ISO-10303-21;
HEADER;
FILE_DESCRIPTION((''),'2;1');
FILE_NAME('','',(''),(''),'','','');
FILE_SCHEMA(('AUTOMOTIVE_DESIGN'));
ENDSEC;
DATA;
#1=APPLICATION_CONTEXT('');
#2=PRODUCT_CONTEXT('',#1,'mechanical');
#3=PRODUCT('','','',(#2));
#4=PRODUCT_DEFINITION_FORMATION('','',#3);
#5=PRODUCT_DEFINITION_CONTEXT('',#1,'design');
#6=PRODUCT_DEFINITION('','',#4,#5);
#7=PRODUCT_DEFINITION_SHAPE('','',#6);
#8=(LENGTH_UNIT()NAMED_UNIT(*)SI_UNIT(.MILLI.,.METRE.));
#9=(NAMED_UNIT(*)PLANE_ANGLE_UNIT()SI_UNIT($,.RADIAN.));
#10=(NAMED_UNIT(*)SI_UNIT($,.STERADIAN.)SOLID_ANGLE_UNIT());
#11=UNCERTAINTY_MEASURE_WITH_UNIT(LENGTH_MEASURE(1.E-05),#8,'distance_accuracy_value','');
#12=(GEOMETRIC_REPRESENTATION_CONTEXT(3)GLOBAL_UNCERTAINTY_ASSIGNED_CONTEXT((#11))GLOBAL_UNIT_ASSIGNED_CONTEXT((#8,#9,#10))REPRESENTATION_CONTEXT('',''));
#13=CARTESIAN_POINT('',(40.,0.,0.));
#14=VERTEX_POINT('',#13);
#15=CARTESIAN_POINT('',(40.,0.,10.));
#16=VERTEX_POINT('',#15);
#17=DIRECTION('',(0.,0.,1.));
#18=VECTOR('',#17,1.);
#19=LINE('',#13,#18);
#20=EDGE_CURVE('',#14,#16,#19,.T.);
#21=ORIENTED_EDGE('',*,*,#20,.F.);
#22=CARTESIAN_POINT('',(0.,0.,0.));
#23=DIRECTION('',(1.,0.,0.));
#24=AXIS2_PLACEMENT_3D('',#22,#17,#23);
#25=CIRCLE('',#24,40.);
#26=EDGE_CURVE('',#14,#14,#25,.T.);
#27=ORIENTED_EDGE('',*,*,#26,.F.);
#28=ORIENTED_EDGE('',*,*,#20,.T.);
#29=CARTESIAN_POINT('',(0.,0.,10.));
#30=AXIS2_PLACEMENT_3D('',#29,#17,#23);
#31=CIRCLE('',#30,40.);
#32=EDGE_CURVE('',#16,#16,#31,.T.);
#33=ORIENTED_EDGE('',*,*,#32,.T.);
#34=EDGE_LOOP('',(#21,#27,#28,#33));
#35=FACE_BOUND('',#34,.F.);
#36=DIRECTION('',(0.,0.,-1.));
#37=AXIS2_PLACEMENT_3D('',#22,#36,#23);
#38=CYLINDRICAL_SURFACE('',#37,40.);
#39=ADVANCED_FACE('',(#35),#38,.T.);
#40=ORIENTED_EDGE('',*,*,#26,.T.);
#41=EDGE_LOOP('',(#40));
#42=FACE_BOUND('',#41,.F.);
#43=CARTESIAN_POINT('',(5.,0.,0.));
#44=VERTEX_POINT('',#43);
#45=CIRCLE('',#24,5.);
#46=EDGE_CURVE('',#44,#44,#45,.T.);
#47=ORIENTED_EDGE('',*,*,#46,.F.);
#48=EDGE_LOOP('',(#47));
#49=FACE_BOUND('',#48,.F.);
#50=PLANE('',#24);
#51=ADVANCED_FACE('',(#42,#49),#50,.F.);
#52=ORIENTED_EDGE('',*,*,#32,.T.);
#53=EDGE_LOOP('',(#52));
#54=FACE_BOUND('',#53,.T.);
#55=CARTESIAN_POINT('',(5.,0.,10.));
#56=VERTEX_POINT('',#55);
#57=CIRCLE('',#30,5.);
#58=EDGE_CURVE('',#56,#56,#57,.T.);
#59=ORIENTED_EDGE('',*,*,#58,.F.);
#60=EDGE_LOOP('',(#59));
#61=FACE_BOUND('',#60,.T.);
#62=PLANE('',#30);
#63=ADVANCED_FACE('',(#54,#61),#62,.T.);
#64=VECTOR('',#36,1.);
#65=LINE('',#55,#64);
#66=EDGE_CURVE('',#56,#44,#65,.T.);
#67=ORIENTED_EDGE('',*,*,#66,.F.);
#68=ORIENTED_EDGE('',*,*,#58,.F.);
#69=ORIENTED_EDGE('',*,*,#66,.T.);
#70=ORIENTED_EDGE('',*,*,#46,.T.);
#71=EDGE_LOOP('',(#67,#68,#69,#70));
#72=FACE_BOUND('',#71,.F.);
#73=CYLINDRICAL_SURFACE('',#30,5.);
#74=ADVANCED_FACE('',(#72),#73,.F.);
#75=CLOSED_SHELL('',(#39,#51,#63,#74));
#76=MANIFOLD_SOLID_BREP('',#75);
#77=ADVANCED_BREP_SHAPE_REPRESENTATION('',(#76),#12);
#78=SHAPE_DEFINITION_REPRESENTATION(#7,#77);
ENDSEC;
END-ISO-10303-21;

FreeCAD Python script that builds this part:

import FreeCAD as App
import Part
import Sketcher

V = App.Vector
Q = App.Units.Quantity

doc = App.newDocument("Part")
body = doc.addObject("PartDesign::Body", "Body")

# Sketch on XY plane
sketch1 = doc.addObject("Sketcher::SketchObject", "Sketch")
body.addObject(sketch1)
sketch1.AttachmentSupport = (doc.XY_Plane, [""])
sketch1.MapMode = "FlatFace"
sketch1.addGeometry(Part.Circle(V(0, 0, 0), V(0, 0, 1), 40), False)
sketch1.addConstraint([
    Sketcher.Constraint("Coincident", 0, 3, -1, 1),
    Sketcher.Constraint("Diameter", 0, Q("80 mm")),
])
pad1 = doc.addObject("PartDesign::Pad", "Pad")
body.addObject(pad1)
pad1.Profile = sketch1
pad1.Length = 10

# Sketch on XY plane
sketch2 = doc.addObject("Sketcher::SketchObject", "Sketch001")
body.addObject(sketch2)
sketch2.AttachmentSupport = (doc.XY_Plane, [""])
sketch2.MapMode = "FlatFace"
sketch2.AttachmentOffset = App.Placement(V(0, 0, 10), App.Rotation())
sketch2.addGeometry(Part.Circle(V(0, 0, 0), V(0, 0, 1), 5), False)
sketch2.addConstraint([
    Sketcher.Constraint("Coincident", 0, 3, -1, 1),
    Sketcher.Constraint("Diameter", 0, Q("10 mm")),
])
pocket1 = doc.addObject("PartDesign::Pocket", "Pocket")
body.addObject(pocket1)
pocket1.Profile = sketch2
pocket1.Length = 10

doc.recompute()
